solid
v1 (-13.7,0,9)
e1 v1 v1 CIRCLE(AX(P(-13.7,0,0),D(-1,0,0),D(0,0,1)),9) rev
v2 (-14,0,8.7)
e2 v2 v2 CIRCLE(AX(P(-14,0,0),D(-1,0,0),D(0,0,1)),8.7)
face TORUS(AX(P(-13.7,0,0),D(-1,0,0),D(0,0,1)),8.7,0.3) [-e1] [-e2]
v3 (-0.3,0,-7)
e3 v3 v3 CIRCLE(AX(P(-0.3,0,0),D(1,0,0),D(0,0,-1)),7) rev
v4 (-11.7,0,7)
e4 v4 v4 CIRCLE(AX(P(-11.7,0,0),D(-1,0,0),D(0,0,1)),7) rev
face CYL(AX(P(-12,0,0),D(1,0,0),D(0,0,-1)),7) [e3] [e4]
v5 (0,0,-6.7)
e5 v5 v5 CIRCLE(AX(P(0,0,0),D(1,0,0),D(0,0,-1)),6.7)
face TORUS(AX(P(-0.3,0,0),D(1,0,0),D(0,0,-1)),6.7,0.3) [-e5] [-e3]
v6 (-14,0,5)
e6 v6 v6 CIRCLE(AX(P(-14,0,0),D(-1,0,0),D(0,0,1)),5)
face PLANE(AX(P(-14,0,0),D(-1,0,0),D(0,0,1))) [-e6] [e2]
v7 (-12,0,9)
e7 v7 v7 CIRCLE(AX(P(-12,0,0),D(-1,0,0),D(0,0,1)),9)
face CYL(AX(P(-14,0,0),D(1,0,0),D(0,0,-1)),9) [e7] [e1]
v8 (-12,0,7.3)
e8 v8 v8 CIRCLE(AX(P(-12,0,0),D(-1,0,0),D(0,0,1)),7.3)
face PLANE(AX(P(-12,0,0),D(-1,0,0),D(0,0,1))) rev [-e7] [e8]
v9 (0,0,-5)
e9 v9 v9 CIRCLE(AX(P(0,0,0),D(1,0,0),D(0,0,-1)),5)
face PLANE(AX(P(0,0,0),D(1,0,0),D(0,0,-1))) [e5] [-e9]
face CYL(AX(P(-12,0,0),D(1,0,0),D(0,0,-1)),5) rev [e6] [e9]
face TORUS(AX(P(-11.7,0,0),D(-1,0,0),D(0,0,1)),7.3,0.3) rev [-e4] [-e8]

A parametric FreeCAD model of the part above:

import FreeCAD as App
import Part
import Sketcher
from FreeCAD import Vector
Q = App.Units.Quantity


def edges_at(feature, points):
    """Names of the edges that pass closest to the given points."""
    edges = feature.Shape.Edges
    near = lambda p: min(range(len(edges)), key=lambda i: edges[i].distToShape(Part.Vertex(*p))[0])
    return sorted({f"Edge{near(p) + 1}" for p in points})

doc = App.newDocument("Part")
body = doc.addObject("PartDesign::Body", "Body")

sketch1 = body.newObject("Sketcher::SketchObject", "Sketch")
sketch1.AttachmentSupport = (doc.getObject("YZ_Plane"), [""])
sketch1.MapMode = "FlatFace"
sketch1.addGeometry([
    Part.Circle(Vector(0, 0, 0), Vector(0, 0, 1), 7),
    Part.Circle(Vector(0, 0, 0), Vector(0, 0, 1), 5),
], False)
sketch1.addConstraint([
    Sketcher.Constraint("Coincident", 0, 3, -1, 1),
    Sketcher.Constraint("Coincident", 1, 3, -1, 1),
    Sketcher.Constraint("Diameter", 0, Q("14 mm")),
    Sketcher.Constraint("Diameter", 1, Q("10 mm")),
])
pad1 = body.newObject("PartDesign::Pad", "Pad")
pad1.Profile = sketch1
pad1.Length = 12
pad1.Reversed = True

sketch2 = body.newObject("Sketcher::SketchObject", "Sketch001")
sketch2.AttachmentSupport = (doc.getObject("YZ_Plane"), [""])
sketch2.MapMode = "FlatFace"
sketch2.AttachmentOffset = App.Placement(Vector(0, 0, -12), App.Rotation())
sketch2.addGeometry([
    Part.Circle(Vector(0, 0, 0), Vector(0, 0, 1), 9),
    Part.Circle(Vector(0, 0, 0), Vector(0, 0, 1), 5),
], False)
sketch2.addConstraint([
    Sketcher.Constraint("Coincident", 0, 3, -1, 1),
    Sketcher.Constraint("Coincident", 1, 3, -1, 1),
    Sketcher.Constraint("Diameter", 0, Q("18 mm")),
    Sketcher.Constraint("Diameter", 1, Q("10 mm")),
])
pad2 = body.newObject("PartDesign::Pad", "Pad001")
pad2.Profile = sketch2
pad2.Length = 2
pad2.Reversed = True
doc.recompute()

fillet = body.newObject("PartDesign::Fillet", "Fillet")
fillet.Base = (pad2, edges_at(pad2, [(-12, 0, 7), (-14, 0, -9), (0, 0, 7)]))
fillet.Radius = 0.3

doc.recompute()
